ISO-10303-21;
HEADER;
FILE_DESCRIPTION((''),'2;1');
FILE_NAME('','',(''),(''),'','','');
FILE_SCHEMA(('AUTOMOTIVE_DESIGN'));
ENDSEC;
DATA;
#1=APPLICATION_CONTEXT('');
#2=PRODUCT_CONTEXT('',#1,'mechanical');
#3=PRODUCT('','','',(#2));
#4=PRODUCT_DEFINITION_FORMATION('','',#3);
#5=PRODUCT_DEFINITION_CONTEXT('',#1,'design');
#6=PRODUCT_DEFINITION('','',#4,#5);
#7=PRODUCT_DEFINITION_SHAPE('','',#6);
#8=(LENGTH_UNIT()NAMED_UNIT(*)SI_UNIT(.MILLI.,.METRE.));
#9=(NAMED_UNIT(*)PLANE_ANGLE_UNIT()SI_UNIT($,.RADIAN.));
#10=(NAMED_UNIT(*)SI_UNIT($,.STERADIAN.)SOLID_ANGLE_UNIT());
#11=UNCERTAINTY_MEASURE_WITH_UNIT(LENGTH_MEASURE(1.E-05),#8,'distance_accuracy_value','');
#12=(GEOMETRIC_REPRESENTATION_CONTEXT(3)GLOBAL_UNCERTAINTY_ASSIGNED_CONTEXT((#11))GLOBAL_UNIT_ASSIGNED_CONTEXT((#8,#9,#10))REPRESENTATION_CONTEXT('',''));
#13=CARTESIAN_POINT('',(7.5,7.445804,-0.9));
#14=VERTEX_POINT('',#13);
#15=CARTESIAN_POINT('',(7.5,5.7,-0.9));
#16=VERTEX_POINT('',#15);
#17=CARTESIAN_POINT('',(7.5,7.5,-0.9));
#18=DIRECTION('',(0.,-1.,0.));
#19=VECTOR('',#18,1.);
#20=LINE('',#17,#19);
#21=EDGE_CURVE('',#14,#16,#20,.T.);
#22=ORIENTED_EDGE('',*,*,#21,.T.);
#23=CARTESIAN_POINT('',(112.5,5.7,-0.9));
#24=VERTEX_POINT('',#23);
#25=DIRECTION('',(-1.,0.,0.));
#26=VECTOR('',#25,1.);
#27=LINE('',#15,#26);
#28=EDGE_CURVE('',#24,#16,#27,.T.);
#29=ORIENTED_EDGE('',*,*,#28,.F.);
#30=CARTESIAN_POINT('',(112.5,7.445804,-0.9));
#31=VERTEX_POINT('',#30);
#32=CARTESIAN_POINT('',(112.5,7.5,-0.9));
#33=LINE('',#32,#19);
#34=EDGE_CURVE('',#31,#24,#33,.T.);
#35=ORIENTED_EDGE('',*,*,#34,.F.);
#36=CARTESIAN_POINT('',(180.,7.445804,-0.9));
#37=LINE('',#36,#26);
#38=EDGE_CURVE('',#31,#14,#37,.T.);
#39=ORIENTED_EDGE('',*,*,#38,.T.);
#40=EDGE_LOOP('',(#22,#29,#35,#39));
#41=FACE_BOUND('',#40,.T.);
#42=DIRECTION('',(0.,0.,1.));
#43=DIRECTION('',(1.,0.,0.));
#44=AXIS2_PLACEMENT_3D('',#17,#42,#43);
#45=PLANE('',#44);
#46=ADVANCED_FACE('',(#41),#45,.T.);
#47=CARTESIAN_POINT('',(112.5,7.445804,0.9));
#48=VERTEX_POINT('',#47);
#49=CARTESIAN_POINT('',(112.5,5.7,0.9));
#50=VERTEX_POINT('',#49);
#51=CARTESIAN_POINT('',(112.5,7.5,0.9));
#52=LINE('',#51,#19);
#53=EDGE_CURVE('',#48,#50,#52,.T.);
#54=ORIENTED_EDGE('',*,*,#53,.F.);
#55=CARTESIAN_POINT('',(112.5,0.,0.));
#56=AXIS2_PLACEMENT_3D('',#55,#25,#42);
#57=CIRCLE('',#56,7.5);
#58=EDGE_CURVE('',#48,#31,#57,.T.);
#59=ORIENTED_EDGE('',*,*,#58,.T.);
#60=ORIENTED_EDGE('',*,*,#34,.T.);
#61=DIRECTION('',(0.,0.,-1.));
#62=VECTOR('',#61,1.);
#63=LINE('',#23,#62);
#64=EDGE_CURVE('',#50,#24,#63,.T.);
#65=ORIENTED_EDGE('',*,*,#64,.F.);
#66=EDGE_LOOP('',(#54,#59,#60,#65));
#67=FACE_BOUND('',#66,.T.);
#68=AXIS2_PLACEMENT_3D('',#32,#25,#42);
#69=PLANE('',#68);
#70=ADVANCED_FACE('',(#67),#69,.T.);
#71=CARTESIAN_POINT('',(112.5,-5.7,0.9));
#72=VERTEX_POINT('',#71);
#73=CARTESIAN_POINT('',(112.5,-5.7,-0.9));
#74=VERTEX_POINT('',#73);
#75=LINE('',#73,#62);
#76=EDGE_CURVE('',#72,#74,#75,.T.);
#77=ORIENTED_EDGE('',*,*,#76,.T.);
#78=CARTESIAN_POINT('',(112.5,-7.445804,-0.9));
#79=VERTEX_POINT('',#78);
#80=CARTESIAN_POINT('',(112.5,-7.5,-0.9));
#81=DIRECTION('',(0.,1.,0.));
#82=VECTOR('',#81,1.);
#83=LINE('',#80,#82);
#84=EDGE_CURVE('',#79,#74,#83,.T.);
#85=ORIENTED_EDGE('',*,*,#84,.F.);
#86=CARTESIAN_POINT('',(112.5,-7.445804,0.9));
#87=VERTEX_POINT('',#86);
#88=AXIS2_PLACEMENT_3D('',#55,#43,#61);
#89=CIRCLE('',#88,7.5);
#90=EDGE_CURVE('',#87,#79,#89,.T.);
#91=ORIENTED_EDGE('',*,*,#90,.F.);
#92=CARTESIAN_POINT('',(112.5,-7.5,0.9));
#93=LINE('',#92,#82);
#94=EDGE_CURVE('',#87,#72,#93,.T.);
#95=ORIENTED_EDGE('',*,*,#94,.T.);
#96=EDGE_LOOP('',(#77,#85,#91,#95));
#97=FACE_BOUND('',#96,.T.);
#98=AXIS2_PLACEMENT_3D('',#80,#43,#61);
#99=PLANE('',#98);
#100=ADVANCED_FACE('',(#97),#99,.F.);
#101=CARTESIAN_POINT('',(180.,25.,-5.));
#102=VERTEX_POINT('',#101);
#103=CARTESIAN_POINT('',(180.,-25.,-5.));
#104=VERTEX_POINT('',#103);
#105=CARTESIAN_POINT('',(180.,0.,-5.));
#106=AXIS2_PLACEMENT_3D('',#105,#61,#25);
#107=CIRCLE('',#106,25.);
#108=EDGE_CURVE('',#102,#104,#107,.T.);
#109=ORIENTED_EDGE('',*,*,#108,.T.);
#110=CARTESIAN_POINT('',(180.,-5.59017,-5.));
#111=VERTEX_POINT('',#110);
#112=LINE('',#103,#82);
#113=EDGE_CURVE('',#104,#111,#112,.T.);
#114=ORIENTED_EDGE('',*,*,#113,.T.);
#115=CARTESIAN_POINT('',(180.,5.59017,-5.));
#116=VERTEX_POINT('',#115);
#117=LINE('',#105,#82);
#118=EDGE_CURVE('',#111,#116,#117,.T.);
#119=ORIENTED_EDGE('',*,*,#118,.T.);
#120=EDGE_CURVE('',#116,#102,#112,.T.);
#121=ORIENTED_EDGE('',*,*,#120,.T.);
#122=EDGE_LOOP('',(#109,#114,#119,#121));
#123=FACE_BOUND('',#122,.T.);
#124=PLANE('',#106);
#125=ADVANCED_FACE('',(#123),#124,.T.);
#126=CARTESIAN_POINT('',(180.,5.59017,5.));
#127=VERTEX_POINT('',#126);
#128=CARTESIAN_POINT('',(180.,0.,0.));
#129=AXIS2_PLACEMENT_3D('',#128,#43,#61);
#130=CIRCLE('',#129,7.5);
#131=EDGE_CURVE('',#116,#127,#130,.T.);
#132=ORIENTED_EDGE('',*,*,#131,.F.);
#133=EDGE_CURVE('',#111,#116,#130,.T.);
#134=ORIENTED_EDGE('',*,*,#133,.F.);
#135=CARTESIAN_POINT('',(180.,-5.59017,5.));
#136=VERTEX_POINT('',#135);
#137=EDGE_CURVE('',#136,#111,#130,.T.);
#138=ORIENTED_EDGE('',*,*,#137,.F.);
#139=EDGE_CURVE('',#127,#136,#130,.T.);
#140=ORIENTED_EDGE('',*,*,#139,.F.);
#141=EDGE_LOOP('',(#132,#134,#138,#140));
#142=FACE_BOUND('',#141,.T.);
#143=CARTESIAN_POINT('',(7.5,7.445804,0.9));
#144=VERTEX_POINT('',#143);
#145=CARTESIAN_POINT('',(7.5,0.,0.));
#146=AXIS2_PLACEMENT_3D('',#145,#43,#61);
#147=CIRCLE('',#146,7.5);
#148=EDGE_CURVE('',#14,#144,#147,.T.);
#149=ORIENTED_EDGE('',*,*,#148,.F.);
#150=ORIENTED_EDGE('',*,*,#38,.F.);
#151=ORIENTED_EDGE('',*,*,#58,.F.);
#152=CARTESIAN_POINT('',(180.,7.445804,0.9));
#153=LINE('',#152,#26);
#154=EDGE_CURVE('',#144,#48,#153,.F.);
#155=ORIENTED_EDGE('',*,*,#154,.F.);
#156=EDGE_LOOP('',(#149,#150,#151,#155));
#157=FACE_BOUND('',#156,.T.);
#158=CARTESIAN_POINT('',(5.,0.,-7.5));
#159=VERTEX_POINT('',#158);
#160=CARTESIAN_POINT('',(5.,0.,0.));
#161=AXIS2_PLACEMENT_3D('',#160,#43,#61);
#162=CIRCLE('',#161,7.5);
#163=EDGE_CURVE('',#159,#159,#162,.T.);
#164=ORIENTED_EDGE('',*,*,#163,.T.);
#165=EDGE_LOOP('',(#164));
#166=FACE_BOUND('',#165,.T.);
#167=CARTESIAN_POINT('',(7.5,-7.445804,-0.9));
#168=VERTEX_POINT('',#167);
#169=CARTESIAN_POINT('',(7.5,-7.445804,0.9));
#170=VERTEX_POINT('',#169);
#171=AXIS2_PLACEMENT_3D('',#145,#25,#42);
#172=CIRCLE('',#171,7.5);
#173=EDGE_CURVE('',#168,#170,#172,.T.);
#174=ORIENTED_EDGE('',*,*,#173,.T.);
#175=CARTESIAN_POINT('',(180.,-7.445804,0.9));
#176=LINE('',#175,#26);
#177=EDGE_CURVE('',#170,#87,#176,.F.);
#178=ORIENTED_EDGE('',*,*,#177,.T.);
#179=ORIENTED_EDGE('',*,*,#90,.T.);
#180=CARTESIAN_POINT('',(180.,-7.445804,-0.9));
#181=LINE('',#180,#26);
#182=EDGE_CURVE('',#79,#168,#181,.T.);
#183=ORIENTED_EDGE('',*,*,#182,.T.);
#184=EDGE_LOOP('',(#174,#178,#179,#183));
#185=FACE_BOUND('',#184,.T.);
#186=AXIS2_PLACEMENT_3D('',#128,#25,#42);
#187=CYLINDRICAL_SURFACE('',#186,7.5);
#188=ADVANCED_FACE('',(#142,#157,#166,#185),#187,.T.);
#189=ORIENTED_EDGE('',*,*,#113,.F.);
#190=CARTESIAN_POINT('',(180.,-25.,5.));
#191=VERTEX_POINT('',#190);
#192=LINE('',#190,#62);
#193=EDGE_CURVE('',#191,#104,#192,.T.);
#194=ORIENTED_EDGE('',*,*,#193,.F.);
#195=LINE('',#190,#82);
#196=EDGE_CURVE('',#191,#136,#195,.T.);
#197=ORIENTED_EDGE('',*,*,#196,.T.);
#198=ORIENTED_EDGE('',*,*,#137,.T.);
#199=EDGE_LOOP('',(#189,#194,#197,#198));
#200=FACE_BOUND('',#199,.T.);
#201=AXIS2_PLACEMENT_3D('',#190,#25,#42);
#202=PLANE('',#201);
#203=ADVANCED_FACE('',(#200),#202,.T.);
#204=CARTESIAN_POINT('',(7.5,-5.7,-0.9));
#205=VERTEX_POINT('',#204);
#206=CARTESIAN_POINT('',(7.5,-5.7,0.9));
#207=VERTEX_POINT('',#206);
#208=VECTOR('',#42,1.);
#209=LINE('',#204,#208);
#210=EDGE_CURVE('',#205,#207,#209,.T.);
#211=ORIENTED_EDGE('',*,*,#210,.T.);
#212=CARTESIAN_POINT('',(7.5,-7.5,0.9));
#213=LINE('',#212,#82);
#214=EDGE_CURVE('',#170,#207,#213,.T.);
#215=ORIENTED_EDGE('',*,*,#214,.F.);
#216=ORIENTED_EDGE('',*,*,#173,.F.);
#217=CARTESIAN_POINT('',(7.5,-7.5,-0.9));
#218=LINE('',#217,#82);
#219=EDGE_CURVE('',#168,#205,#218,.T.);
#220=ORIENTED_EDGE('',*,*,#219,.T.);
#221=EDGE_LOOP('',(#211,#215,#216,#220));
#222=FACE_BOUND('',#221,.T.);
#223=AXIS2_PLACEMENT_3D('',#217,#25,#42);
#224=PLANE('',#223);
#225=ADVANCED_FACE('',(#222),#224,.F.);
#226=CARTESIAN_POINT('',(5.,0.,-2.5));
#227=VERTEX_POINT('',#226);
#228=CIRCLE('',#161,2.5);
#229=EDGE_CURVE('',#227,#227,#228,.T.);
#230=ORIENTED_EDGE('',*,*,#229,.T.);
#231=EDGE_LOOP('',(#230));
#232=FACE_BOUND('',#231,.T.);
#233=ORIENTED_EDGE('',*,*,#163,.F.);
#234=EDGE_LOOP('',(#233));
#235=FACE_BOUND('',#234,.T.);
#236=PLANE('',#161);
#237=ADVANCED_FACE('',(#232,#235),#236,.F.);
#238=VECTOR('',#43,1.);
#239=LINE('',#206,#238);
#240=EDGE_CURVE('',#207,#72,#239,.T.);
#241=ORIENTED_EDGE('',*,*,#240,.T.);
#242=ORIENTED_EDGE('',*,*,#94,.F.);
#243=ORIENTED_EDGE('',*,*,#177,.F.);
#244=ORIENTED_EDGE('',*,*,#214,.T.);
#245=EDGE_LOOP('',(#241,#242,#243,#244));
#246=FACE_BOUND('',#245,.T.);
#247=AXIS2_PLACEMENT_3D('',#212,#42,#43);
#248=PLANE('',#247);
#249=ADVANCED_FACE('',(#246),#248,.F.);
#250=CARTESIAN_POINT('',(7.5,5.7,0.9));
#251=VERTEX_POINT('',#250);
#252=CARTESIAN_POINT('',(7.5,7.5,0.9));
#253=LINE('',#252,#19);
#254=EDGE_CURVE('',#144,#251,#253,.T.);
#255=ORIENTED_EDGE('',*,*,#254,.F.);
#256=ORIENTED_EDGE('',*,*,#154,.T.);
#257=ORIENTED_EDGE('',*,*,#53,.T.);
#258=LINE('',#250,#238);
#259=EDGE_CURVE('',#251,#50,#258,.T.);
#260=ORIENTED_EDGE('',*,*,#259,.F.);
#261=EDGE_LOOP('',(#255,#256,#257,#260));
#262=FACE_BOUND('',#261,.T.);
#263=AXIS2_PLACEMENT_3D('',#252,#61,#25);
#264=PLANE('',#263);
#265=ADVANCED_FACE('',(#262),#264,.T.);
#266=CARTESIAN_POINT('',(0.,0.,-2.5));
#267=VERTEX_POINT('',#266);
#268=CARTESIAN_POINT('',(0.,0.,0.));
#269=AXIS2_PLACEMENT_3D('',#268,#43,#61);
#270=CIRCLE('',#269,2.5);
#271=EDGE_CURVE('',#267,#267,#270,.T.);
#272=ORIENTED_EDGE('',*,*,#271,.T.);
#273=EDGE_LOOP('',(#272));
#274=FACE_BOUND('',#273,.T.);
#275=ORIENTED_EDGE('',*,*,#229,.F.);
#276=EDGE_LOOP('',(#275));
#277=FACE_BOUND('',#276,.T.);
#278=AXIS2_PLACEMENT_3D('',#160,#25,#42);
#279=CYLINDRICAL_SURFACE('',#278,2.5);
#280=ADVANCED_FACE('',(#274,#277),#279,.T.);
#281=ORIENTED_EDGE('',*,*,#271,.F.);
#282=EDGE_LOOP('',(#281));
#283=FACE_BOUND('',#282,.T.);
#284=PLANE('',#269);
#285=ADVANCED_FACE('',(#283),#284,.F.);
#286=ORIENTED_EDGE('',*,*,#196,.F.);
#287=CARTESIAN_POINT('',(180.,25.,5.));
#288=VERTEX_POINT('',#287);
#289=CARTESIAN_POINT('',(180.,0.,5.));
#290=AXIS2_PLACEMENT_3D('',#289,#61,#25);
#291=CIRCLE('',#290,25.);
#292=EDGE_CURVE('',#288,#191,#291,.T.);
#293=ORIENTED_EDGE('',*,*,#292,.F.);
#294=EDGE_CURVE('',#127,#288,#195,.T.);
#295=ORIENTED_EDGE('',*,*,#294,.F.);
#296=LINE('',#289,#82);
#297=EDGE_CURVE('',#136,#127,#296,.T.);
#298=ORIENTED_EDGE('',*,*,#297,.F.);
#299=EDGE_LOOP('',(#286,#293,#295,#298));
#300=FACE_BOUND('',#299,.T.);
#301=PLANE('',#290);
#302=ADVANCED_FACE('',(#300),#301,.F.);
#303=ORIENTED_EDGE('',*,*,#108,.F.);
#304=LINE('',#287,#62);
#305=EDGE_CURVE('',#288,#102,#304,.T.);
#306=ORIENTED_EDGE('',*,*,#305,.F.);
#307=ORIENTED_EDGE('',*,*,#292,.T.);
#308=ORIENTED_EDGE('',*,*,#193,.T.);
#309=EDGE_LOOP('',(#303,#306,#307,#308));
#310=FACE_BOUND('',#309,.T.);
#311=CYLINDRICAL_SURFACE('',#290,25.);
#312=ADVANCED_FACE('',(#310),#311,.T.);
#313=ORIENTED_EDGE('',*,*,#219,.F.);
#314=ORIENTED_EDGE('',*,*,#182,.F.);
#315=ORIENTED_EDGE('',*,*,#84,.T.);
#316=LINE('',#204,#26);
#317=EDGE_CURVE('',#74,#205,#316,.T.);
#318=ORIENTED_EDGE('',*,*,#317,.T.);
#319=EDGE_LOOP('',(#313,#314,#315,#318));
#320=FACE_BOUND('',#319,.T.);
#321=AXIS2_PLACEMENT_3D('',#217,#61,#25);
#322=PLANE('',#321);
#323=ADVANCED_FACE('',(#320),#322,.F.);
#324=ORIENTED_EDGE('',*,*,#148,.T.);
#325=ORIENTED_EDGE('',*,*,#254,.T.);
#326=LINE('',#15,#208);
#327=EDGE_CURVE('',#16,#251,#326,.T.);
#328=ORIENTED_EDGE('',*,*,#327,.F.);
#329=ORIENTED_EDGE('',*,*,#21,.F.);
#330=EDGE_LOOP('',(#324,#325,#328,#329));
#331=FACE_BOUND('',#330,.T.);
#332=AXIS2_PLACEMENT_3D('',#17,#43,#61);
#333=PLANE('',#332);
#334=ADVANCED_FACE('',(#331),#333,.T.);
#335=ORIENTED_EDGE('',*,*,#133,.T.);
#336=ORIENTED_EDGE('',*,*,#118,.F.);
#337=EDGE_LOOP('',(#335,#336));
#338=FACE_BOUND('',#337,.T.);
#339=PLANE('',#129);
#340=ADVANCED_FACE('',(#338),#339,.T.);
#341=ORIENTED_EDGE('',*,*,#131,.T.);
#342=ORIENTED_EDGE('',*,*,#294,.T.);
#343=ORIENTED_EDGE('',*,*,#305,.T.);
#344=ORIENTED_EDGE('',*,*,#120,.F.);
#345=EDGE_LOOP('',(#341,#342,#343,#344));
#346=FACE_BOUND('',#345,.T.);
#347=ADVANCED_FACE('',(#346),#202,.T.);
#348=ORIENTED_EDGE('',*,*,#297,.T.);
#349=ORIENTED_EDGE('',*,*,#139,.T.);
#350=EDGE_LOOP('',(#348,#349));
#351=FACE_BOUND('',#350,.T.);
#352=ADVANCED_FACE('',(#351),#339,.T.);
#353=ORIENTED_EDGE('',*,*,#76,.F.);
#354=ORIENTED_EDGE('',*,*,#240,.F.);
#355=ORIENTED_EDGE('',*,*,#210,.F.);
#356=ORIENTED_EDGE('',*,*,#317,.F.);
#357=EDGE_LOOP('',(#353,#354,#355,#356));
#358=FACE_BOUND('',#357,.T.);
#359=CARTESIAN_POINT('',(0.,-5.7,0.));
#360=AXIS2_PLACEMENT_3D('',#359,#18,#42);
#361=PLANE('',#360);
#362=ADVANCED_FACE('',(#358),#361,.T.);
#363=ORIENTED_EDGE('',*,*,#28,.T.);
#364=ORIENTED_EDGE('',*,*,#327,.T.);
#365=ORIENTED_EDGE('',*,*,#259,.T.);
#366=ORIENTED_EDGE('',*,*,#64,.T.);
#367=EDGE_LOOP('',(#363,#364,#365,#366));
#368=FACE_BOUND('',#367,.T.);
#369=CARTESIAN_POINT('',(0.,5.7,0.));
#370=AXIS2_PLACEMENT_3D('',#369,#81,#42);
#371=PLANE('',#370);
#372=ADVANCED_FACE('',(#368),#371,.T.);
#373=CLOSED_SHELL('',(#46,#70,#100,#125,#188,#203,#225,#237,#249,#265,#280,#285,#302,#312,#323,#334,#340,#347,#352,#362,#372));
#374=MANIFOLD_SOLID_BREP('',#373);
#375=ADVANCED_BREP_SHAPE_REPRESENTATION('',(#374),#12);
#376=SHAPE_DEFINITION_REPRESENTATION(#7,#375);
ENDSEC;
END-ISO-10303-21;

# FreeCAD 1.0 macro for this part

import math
import FreeCAD as App
import Part
import Sketcher
Q = App.Units.Quantity

doc = App.newDocument("Part")
params = doc.addObject("Spreadsheet::Sheet", "Params")
for row, (alias, value) in enumerate([
    ("sketch1_diameter", "5 mm"),
    ("pad1_length", "5 mm"),
    ("sketch2_diameter", "15 mm"),
    ("pad2_length", "175 mm"),
    ("sketch3_radius", "25 mm"),
    ("pad3_length", "10 mm"),
    ("sketch4_width", "105 mm"),
    ("sketch4_height", "1.8 mm"),
    ("pocket1_length", "1.8 mm"),
], start=1):
    params.set(f"A{row}", alias)
    params.set(f"B{row}", "=" + value)
    params.setAlias(f"B{row}", alias)

body = doc.addObject("PartDesign::Body", "Body")

sketch1 = body.newObject("Sketcher::SketchObject", "Sketch")
sketch1.AttachmentSupport = (doc.getObject("YZ_Plane"), [""])
sketch1.MapMode = "FlatFace"
sketch1.addGeometry(Part.Circle(App.Vector(0, 0, 0), App.Vector(0, 0, 1), 2.5), False)
sketch1.addConstraint([
    Sketcher.Constraint("Coincident", 0, 3, -1, 1),
    Sketcher.Constraint("Diameter", 0, Q("5 mm")),
])
sketch1.setExpression("Constraints[1]", "Params.sketch1_diameter")
pad1 = body.newObject("PartDesign::Pad", "Pad")
pad1.Profile = sketch1
pad1.setExpression("Length", "Params.pad1_length")

sketch2 = body.newObject("Sketcher::SketchObject", "Sketch001")
sketch2.AttachmentSupport = (doc.getObject("YZ_Plane"), [""])
sketch2.MapMode = "FlatFace"
sketch2.AttachmentOffset = App.Placement(App.Vector(0, 0, 5), App.Rotation())
sketch2.addGeometry(Part.Circle(App.Vector(0, 0, 0), App.Vector(0, 0, 1), 8), False)
sketch2.addConstraint([
    Sketcher.Constraint("Coincident", 0, 3, -1, 1),
    Sketcher.Constraint("Diameter", 0, Q("15 mm")),
])
sketch2.setExpression("Constraints[1]", "Params.sketch2_diameter")
pad2 = body.newObject("PartDesign::Pad", "Pad001")
pad2.Profile = sketch2
pad2.setExpression("Length", "Params.pad2_length")

sketch3 = body.newObject("Sketcher::SketchObject", "Sketch002")
sketch3.AttachmentSupport = (doc.getObject("XY_Plane"), [""])
sketch3.MapMode = "FlatFace"
sketch3.addGeometry([
    Part.LineSegment(App.Vector(180, 25, 0), App.Vector(180, -25, 0)),
    Part.ArcOfCircle(Part.Circle(App.Vector(180, 0, 0), App.Vector(0, 0, 1), 25), math.radians(-90), math.radians(90)),
], False)
sketch3.addConstraint([
    Sketcher.Constraint("Coincident", 0, 1, 1, 2),
    Sketcher.Constraint("Coincident", 1, 1, 0, 2),
    Sketcher.Constraint("Vertical", 0),
    Sketcher.Constraint("PointOnObject", 1, 3, -1),
    Sketcher.Constraint("Vertical", 1, 3, 0, 1),
    Sketcher.Constraint("Radius", 1, Q("25 mm")),
    Sketcher.Constraint("DistanceX", -1, 1, 1, 3, Q("180 mm")),
])
sketch3.setExpression("Constraints[5]", "Params.sketch3_radius")
pad3 = body.newObject("PartDesign::Pad", "Pad002")
pad3.Profile = sketch3
pad3.setExpression("Length", "Params.pad3_length")
pad3.Midplane = True

sketch4 = body.newObject("Sketcher::SketchObject", "Sketch003")
sketch4.AttachmentSupport = (doc.getObject("XZ_Plane"), [""])
sketch4.MapMode = "FlatFace"
sketch4.AttachmentOffset = App.Placement(App.Vector(0, 0, -5.7), App.Rotation())
sketch4.addGeometry([
    Part.LineSegment(App.Vector(7.5, -0.9, 0), App.Vector(7.5, 0.9, 0)),
    Part.LineSegment(App.Vector(7.5, 0.9, 0), App.Vector(112.5, 0.9, 0)),
    Part.LineSegment(App.Vector(112.5, 0.9, 0), App.Vector(112.5, -0.9, 0)),
    Part.LineSegment(App.Vector(112.5, -0.9, 0), App.Vector(7.5, -0.9, 0)),
], False)
sketch4.addConstraint([
    Sketcher.Constraint("Coincident", 0, 2, 1, 1),
    Sketcher.Constraint("Coincident", 1, 2, 2, 1),
    Sketcher.Constraint("Coincident", 2, 2, 3, 1),
    Sketcher.Constraint("Coincident", 3, 2, 0, 1),
    Sketcher.Constraint("Vertical", 0),
    Sketcher.Constraint("Horizontal", 1),
    Sketcher.Constraint("Vertical", 2),
    Sketcher.Constraint("Horizontal", 3),
    Sketcher.Constraint("DistanceX", 1, 1, 1, 2, Q("105 mm")),
    Sketcher.Constraint("DistanceY", 0, 1, 0, 2, Q("1.8 mm")),
    Sketcher.Constraint("DistanceX", -1, 1, 0, 2, Q("7.5 mm")),
    Sketcher.Constraint("DistanceY", -1, 1, 0, 2, Q("0.9 mm")),
])
sketch4.setExpression("Constraints[8]", "Params.sketch4_width")
sketch4.setExpression("Constraints[9]", "Params.sketch4_height")
pocket1 = body.newObject("PartDesign::Pocket", "Pocket")
pocket1.Profile = sketch4
pocket1.setExpression("Length", "Params.pocket1_length")
doc.recompute()

mirrored = body.newObject("PartDesign::Mirrored", "Mirrored")
mirrored.Originals = [pocket1]
mirrored.MirrorPlane = (doc.getObject("XZ_Plane"), [""])
body.Tip = mirrored

doc.recompute()
